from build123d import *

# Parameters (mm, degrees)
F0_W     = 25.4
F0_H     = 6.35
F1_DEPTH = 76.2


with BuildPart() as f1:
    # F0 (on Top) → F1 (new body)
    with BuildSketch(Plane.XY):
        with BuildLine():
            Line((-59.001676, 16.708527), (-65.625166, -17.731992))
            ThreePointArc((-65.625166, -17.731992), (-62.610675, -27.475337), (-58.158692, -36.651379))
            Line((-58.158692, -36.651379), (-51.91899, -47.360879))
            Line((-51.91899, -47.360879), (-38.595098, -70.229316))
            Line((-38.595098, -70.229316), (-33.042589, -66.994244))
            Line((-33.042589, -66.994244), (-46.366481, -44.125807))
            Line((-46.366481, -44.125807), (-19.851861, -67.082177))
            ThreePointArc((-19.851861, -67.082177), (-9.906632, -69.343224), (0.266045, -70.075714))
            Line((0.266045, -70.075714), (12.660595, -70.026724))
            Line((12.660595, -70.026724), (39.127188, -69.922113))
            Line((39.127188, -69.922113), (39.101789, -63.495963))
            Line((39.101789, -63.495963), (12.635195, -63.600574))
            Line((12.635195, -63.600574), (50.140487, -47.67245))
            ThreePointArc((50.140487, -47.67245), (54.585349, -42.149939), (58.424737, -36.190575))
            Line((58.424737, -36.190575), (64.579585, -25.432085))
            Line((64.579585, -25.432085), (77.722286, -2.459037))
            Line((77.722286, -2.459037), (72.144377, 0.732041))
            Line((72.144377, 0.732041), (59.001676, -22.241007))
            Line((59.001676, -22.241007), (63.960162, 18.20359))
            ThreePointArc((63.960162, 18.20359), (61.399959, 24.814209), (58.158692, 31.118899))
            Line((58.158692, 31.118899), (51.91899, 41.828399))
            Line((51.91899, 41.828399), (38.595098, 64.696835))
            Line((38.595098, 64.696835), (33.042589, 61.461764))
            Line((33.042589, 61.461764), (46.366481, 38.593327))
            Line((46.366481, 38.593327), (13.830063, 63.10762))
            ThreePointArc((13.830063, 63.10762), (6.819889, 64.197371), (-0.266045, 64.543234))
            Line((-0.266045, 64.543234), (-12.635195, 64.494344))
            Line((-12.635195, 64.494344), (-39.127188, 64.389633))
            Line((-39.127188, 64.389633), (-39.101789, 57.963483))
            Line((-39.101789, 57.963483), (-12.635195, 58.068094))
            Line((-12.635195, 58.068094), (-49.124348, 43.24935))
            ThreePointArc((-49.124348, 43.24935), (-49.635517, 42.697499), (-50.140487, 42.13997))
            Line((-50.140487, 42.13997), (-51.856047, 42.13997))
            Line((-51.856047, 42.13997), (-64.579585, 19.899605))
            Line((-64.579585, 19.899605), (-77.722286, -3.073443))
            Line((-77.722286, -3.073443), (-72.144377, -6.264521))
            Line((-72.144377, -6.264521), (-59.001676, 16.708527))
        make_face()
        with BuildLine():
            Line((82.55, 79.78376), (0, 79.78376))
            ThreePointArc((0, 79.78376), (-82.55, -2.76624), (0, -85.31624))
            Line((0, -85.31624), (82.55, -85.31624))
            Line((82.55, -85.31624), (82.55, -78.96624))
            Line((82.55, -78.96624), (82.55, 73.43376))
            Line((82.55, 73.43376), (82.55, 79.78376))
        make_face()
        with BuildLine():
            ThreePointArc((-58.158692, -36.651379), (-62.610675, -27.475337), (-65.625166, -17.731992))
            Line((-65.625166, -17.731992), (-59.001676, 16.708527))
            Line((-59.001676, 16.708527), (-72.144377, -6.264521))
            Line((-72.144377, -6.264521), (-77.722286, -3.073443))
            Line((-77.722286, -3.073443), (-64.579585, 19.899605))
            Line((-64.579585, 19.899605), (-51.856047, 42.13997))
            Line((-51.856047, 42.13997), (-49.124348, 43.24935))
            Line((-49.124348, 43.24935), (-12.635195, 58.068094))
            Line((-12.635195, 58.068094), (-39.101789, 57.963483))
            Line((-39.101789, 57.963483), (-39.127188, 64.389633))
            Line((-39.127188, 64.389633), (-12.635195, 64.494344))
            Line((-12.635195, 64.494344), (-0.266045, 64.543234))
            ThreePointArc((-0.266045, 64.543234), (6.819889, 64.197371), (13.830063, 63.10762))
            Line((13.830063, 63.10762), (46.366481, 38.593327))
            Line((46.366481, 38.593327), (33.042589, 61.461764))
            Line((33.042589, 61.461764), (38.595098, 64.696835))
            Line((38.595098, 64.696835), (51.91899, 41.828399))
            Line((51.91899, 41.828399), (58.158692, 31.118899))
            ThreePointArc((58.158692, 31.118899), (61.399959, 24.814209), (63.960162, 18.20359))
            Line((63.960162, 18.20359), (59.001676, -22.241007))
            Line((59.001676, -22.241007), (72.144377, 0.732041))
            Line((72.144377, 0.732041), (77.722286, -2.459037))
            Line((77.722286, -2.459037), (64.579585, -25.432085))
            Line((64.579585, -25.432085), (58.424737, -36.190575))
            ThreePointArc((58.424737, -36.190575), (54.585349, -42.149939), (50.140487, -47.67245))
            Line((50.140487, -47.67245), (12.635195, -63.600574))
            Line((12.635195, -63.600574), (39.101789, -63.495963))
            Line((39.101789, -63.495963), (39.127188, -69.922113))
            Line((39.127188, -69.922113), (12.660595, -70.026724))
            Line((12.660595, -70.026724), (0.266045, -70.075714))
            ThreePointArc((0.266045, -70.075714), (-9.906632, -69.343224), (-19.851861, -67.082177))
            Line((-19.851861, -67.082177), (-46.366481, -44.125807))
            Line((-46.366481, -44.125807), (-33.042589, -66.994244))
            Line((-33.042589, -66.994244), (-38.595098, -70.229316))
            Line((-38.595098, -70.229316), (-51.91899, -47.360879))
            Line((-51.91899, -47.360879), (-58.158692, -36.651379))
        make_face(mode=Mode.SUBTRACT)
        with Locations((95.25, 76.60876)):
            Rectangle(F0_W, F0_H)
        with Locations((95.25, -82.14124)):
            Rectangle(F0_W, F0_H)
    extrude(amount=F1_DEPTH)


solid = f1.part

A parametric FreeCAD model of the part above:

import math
import FreeCAD as App
import Part
import Sketcher

V = App.Vector
Q = App.Units.Quantity

doc = App.newDocument("Part")
body = doc.addObject("PartDesign::Body", "Body")

# Sketch on XY plane
sketch1 = doc.addObject("Sketcher::SketchObject", "Sketch")
body.addObject(sketch1)
sketch1.AttachmentSupport = (doc.XY_Plane, [""])
sketch1.MapMode = "FlatFace"
sketch1.addGeometry(Part.ArcOfCircle(Part.Circle(V(0, -2.8, 0), V(0, 0, 1), 82.5), math.radians(90), math.radians(270)), False)
sketch1.addGeometry(Part.LineSegment(V(0, -85.3, 0), V(108, -85.3, 0)), False)
sketch1.addGeometry(Part.LineSegment(V(108, -85.3, 0), V(108, -79, 0)), False)
sketch1.addGeometry(Part.LineSegment(V(108, -79, 0), V(82.5, -79, 0)), False)
sketch1.addGeometry(Part.LineSegment(V(82.5, -79, 0), V(82.5, 73.4, 0)), False)
sketch1.addGeometry(Part.LineSegment(V(82.5, 73.4, 0), V(108, 73.4, 0)), False)
sketch1.addGeometry(Part.LineSegment(V(108, 73.4, 0), V(108, 79.8, 0)), False)
sketch1.addGeometry(Part.LineSegment(V(108, 79.8, 0), V(0, 79.8, 0)), False)
sketch1.addGeometry(Part.LineSegment(V(-51.9, -47.4, 0), V(-58.2, -36.7, 0)), False)
sketch1.addGeometry(Part.ArcOfCircle(Part.Circle(V(0, -2.8, 0), V(0, 0, 1), 67.3), math.radians(-167.15), math.radians(-149.77)), False)
sketch1.addGeometry(Part.LineSegment(V(-65.6, -17.7, 0), V(-59, 16.7, 0)), False)
sketch1.addGeometry(Part.LineSegment(V(-59, 16.7, 0), V(-72.1, -6.3, 0)), False)
sketch1.addGeometry(Part.LineSegment(V(-72.1, -6.3, 0), V(-77.7, -3.1, 0)), False)
sketch1.addGeometry(Part.LineSegment(V(-77.7, -3.1, 0), V(-64.6, 19.9, 0)), False)
sketch1.addGeometry(Part.LineSegment(V(-64.6, 19.9, 0), V(-51.9, 42.1, 0)), False)
sketch1.addGeometry(Part.LineSegment(V(-51.9, 42.1, 0), V(-49.1, 43.2, 0)), False)
sketch1.addGeometry(Part.LineSegment(V(-49.1, 43.2, 0), V(-12.6, 58.1, 0)), False)
sketch1.addGeometry(Part.LineSegment(V(-12.6, 58.1, 0), V(-39.1, 58, 0)), False)
sketch1.addGeometry(Part.LineSegment(V(-39.1, 58, 0), V(-39.1, 64.4, 0)), False)
sketch1.addGeometry(Part.LineSegment(V(-39.1, 64.4, 0), V(-12.6, 64.5, 0)), False)
sketch1.addGeometry(Part.LineSegment(V(-12.6, 64.5, 0), V(-0.3, 64.5, 0)), False)
sketch1.addGeometry(Part.ArcOfCircle(Part.Circle(V(0, -2.8, 0), V(0, 0, 1), 67.3), math.radians(78.14), math.radians(90.23)), False)
sketch1.addGeometry(Part.LineSegment(V(13.8, 63.1, 0), V(46.4, 38.6, 0)), False)
sketch1.addGeometry(Part.LineSegment(V(46.4, 38.6, 0), V(33, 61.5, 0)), False)
sketch1.addGeometry(Part.LineSegment(V(33, 61.5, 0), V(38.6, 64.7, 0)), False)
sketch1.addGeometry(Part.LineSegment(V(38.6, 64.7, 0), V(51.9, 41.8, 0)), False)
sketch1.addGeometry(Part.LineSegment(V(51.9, 41.8, 0), V(58.2, 31.1, 0)), False)
sketch1.addGeometry(Part.ArcOfCircle(Part.Circle(V(0, -2.8, 0), V(0, 0, 1), 67.3), math.radians(18.15), math.radians(30.23)), False)
sketch1.addGeometry(Part.LineSegment(V(64, 18.2, 0), V(59, -22.2, 0)), False)
sketch1.addGeometry(Part.LineSegment(V(59, -22.2, 0), V(72.1, 0.7, 0)), False)
sketch1.addGeometry(Part.LineSegment(V(72.1, 0.7, 0), V(77.7, -2.5, 0)), False)
sketch1.addGeometry(Part.LineSegment(V(77.7, -2.5, 0), V(64.6, -25.4, 0)), False)
sketch1.addGeometry(Part.LineSegment(V(64.6, -25.4, 0), V(58.4, -36.2, 0)), False)
sketch1.addGeometry(Part.ArcOfCircle(Part.Circle(V(0, -2.8, 0), V(0, 0, 1), 67.3), math.radians(-41.85), math.radians(-29.77)), False)
sketch1.addGeometry(Part.LineSegment(V(50.1, -47.7, 0), V(12.6, -63.6, 0)), False)
sketch1.addGeometry(Part.LineSegment(V(12.6, -63.6, 0), V(39.1, -63.5, 0)), False)
sketch1.addGeometry(Part.LineSegment(V(39.1, -63.5, 0), V(39.1, -69.9, 0)), False)
sketch1.addGeometry(Part.LineSegment(V(39.1, -69.9, 0), V(12.7, -70, 0)), False)
sketch1.addGeometry(Part.LineSegment(V(12.7, -70, 0), V(0.3, -70.1, 0)), False)
sketch1.addGeometry(Part.ArcOfCircle(Part.Circle(V(0, -2.8, 0), V(0, 0, 1), 67.3), math.radians(-107.15), math.radians(-89.77)), False)
sketch1.addGeometry(Part.LineSegment(V(-19.9, -67.1, 0), V(-46.4, -44.1, 0)), False)
sketch1.addGeometry(Part.LineSegment(V(-46.4, -44.1, 0), V(-33, -67, 0)), False)
sketch1.addGeometry(Part.LineSegment(V(-33, -67, 0), V(-38.6, -70.2, 0)), False)
sketch1.addGeometry(Part.LineSegment(V(-38.6, -70.2, 0), V(-51.9, -47.4, 0)), False)
sketch1.addConstraint(Sketcher.Constraint("Tangent", 0, 2, 1, 1))
sketch1.addConstraint(Sketcher.Constraint("Coincident", 1, 2, 2, 1))
sketch1.addConstraint(Sketcher.Constraint("Coincident", 2, 2, 3, 1))
sketch1.addConstraint(Sketcher.Constraint("Coincident", 3, 2, 4, 1))
sketch1.addConstraint(Sketcher.Constraint("Coincident", 4, 2, 5, 1))
sketch1.addConstraint(Sketcher.Constraint("Coincident", 5, 2, 6, 1))
sketch1.addConstraint(Sketcher.Constraint("Coincident", 6, 2, 7, 1))
sketch1.addConstraint(Sketcher.Constraint("Tangent", 7, 2, 0, 1))
sketch1.addConstraint(Sketcher.Constraint("Tangent", 8, 2, 9, 2))
sketch1.addConstraint(Sketcher.Constraint("Coincident", 9, 1, 10, 1))
sketch1.addConstraint(Sketcher.Constraint("Coincident", 10, 2, 11, 1))
sketch1.addConstraint(Sketcher.Constraint("Coincident", 11, 2, 12, 1))
sketch1.addConstraint(Sketcher.Constraint("Coincident", 12, 2, 13, 1))
sketch1.addConstraint(Sketcher.Constraint("Coincident", 13, 2, 14, 1))
sketch1.addConstraint(Sketcher.Constraint("Coincident", 14, 2, 15, 1))
sketch1.addConstraint(Sketcher.Constraint("Coincident", 15, 2, 16, 1))
sketch1.addConstraint(Sketcher.Constraint("Coincident", 16, 2, 17, 1))
sketch1.addConstraint(Sketcher.Constraint("Coincident", 17, 2, 18, 1))
sketch1.addConstraint(Sketcher.Constraint("Coincident", 18, 2, 19, 1))
sketch1.addConstraint(Sketcher.Constraint("Coincident", 19, 2, 20, 1))
sketch1.addConstraint(Sketcher.Constraint("Tangent", 20, 2, 21, 2))
sketch1.addConstraint(Sketcher.Constraint("Coincident", 21, 1, 22, 1))
sketch1.addConstraint(Sketcher.Constraint("Coincident", 22, 2, 23, 1))
sketch1.addConstraint(Sketcher.Constraint("Coincident", 23, 2, 24, 1))
sketch1.addConstraint(Sketcher.Constraint("Coincident", 24, 2, 25, 1))
sketch1.addConstraint(Sketcher.Constraint("Coincident", 25, 2, 26, 1))
sketch1.addConstraint(Sketcher.Constraint("Tangent", 26, 2, 27, 2))
sketch1.addConstraint(Sketcher.Constraint("Coincident", 27, 1, 28, 1))
sketch1.addConstraint(Sketcher.Constraint("Coincident", 28, 2, 29, 1))
sketch1.addConstraint(Sketcher.Constraint("Coincident", 29, 2, 30, 1))
sketch1.addConstraint(Sketcher.Constraint("Coincident", 30, 2, 31, 1))
sketch1.addConstraint(Sketcher.Constraint("Coincident", 31, 2, 32, 1))
sketch1.addConstraint(Sketcher.Constraint("Tangent", 32, 2, 33, 2))
sketch1.addConstraint(Sketcher.Constraint("Coincident", 33, 1, 34, 1))
sketch1.addConstraint(Sketcher.Constraint("Coincident", 34, 2, 35, 1))
sketch1.addConstraint(Sketcher.Constraint("Coincident", 35, 2, 36, 1))
sketch1.addConstraint(Sketcher.Constraint("Coincident", 36, 2, 37, 1))
sketch1.addConstraint(Sketcher.Constraint("Coincident", 37, 2, 38, 1))
sketch1.addConstraint(Sketcher.Constraint("Tangent", 38, 2, 39, 2))
sketch1.addConstraint(Sketcher.Constraint("Coincident", 39, 1, 40, 1))
sketch1.addConstraint(Sketcher.Constraint("Coincident", 40, 2, 41, 1))
sketch1.addConstraint(Sketcher.Constraint("Coincident", 41, 2, 42, 1))
sketch1.addConstraint(Sketcher.Constraint("Coincident", 42, 2, 43, 1))
sketch1.addConstraint(Sketcher.Constraint("Coincident", 43, 2, 8, 1))
sketch1.addConstraint(Sketcher.Constraint("Horizontal", 1))
sketch1.addConstraint(Sketcher.Constraint("Vertical", 2))
sketch1.addConstraint(Sketcher.Constraint("Horizontal", 3))
sketch1.addConstraint(Sketcher.Constraint("Vertical", 4))
sketch1.addConstraint(Sketcher.Constraint("Horizontal", 5))
sketch1.addConstraint(Sketcher.Constraint("Vertical", 6))
sketch1.addConstraint(Sketcher.Constraint("Horizontal", 7))
sketch1.addConstraint(Sketcher.Constraint("PointOnObject", 0, 3, -2))
sketch1.addConstraint(Sketcher.Constraint("PointOnObject", 21, 3, -2))
sketch1.addConstraint(Sketcher.Constraint("Perpendicular", 11, 12))
sketch1.addConstraint(Sketcher.Constraint("Perpendicular", 12, 13))
sketch1.addConstraint(Sketcher.Constraint("Parallel", 13, 14))
sketch1.addConstraint(Sketcher.Constraint("Parallel", 15, 16))
sketch1.addConstraint(Sketcher.Constraint("Perpendicular", 17, 18))
sketch1.addConstraint(Sketcher.Constraint("Perpendicular", 18, 19))
sketch1.addConstraint(Sketcher.Constraint("Parallel", 19, 20))
sketch1.addConstraint(Sketcher.Constraint("Parallel", 8, 23))
sketch1.addConstraint(Sketcher.Constraint("Perpendicular", 23, 24))
sketch1.addConstraint(Sketcher.Constraint("Perpendicular", 24, 25))
sketch1.addConstraint(Sketcher.Constraint("Parallel", 25, 26))
sketch1.addConstraint(Sketcher.Constraint("Parallel", 14, 29))
sketch1.addConstraint(Sketcher.Constraint("Perpendicular", 29, 30))
sketch1.addConstraint(Sketcher.Constraint("Perpendicular", 30, 31))
sketch1.addConstraint(Sketcher.Constraint("Parallel", 31, 32))
sketch1.addConstraint(Sketcher.Constraint("Parallel", 20, 35))
sketch1.addConstraint(Sketcher.Constraint("Perpendicular", 35, 36))
sketch1.addConstraint(Sketcher.Constraint("Perpendicular", 36, 37))
sketch1.addConstraint(Sketcher.Constraint("Parallel", 37, 38))
sketch1.addConstraint(Sketcher.Constraint("Parallel", 26, 41))
sketch1.addConstraint(Sketcher.Constraint("Perpendicular", 41, 42))
sketch1.addConstraint(Sketcher.Constraint("Perpendicular", 42, 43))
sketch1.addConstraint(Sketcher.Constraint("Horizontal", 27, 3, 33, 3))
sketch1.addConstraint(Sketcher.Constraint("Vertical", 2, 2, 5, 2))
sketch1.addConstraint(Sketcher.Constraint("Vertical", 16, 2, 19, 2))
sketch1.addConstraint(Sketcher.Constraint("Equal", 2, 6))
sketch1.addConstraint(Sketcher.Constraint("Equal", 11, 13))
sketch1.addConstraint(Sketcher.Constraint("Equal", 13, 17))
sketch1.addConstraint(Sketcher.Constraint("Equal", 12, 18))
sketch1.addConstraint(Sketcher.Constraint("Equal", 17, 23))
sketch1.addConstraint(Sketcher.Constraint("Equal", 18, 24))
sketch1.addConstraint(Sketcher.Constraint("Equal", 23, 25))
sketch1.addConstraint(Sketcher.Constraint("Equal", 8, 26))
sketch1.addConstraint(Sketcher.Constraint("Equal", 25, 29))
sketch1.addConstraint(Sketcher.Constraint("Equal", 24, 30))
sketch1.addConstraint(Sketcher.Constraint("Equal", 29, 31))
sketch1.addConstraint(Sketcher.Constraint("Equal", 26, 32))
sketch1.addConstraint(Sketcher.Constraint("Equal", 28, 34))
sketch1.addConstraint(Sketcher.Constraint("Equal", 31, 35))
sketch1.addConstraint(Sketcher.Constraint("Equal", 30, 36))
sketch1.addConstraint(Sketcher.Constraint("Equal", 35, 37))
sketch1.addConstraint(Sketcher.Constraint("Equal", 32, 38))
sketch1.addConstraint(Sketcher.Constraint("Equal", 10, 40))
sketch1.addConstraint(Sketcher.Constraint("Equal", 37, 41))
sketch1.addConstraint(Sketcher.Constraint("Equal", 36, 42))
sketch1.addConstraint(Sketcher.Constraint("Equal", 41, 43))
sketch1.addConstraint(Sketcher.Constraint("DistanceX", 3, 2, 3, 1, Q("1 in")))
sketch1.addConstraint(Sketcher.Constraint("DistanceY", 4, 1, 4, 2, Q("6 in")))
sketch1.addConstraint(Sketcher.Constraint("Radius", 0, Q("3.25 in")))
sketch1.addConstraint(Sketcher.Constraint("DistanceX", 1, 1, 1, 2, Q("4.25 in")))
sketch1.addConstraint(Sketcher.Constraint("Distance", 11, Q("1.042 in")))
sketch1.addConstraint(Sketcher.Constraint("Distance", 12, Q("0.253 in")))
sketch1.addConstraint(Sketcher.Constraint("Distance", 19, Q("1.043 in")))
sketch1.addConstraint(Sketcher.Constraint("Radius", 9, Q("67.310016 mm")))
sketch1.addConstraint(Sketcher.Constraint("Radius", 21, Q("67.309984 mm")))
sketch1.addConstraint(Sketcher.Constraint("Radius", 27, Q("67.309953 mm")))
sketch1.addConstraint(Sketcher.Constraint("Radius", 33, Q("67.310035 mm")))
sketch1.addConstraint(Sketcher.Constraint("Radius", 39, Q("67.309967 mm")))
sketch1.addConstraint(Sketcher.Constraint("DistanceX", 9, 3, 28, 2, Q("2.3229001 in")))
sketch1.addConstraint(Sketcher.Constraint("DistanceY", 30, 2, 25, 2, Q("1.7435998 in")))
sketch1.addConstraint(Sketcher.Constraint("DistanceY", -1, 1, 25, 2, Q("41.828399 mm")))
sketch1.addConstraint(Sketcher.Constraint("DistanceY", -1, 1, 26, 2, Q("31.118899 mm")))
sketch1.addConstraint(Sketcher.Constraint("DistanceX", 11, 2, 10, 2, Q("13.142701 mm")))
sketch1.addConstraint(Sketcher.Constraint("DistanceY", 11, 2, 33, 3, Q("3.498299 mm")))
sketch1.addConstraint(Sketcher.Constraint("DistanceX", 14, 2, 15, 2, Q("2.731699 mm")))
sketch1.addConstraint(Sketcher.Constraint("DistanceY", 20, 2, 24, 2, Q("0.153601 mm")))
sketch1.addConstraint(Sketcher.Constraint("DistanceX", 33, 1, 31, 2, Q("14.439098 mm")))
sketch1.addConstraint(Sketcher.Constraint("DistanceY", 34, 2, 32, 2, Q("27.409999 mm")))
sketch1.addConstraint(Sketcher.Constraint("DistanceX", 36, 2, 33, 1, Q("11.013299 mm")))
sketch1.addConstraint(Sketcher.Constraint("DistanceY", 42, 2, 38, 2, Q("0.153602 mm")))
sketch1.addConstraint(Sketcher.Constraint("Distance", 10, Q("35.071641 mm")))
sketch1.addConstraint(Sketcher.Constraint("Distance", 14, Q("25.62269 mm")))
sketch1.addConstraint(Sketcher.Constraint("Distance", 22, Q("40.737809 mm")))
sketch1.addConstraint(Sketcher.Constraint("DistanceY", 0, 3, -1, 1, Q("2.76624 mm")))
sketch1.addConstraint(Sketcher.Constraint("DistanceY", -1, 1, 15, 2, Q("43.24935 mm")))
sketch1.addConstraint(Sketcher.Constraint("DistanceX", 17, 2, -1, 1, Q("39.101789 mm")))
sketch1.addConstraint(Sketcher.Constraint("DistanceY", -1, 1, 21, 1, Q("63.10762 mm")))
sketch1.addConstraint(Sketcher.Constraint("DistanceX", -1, 1, 35, 2, Q("39.101789 mm")))
pad1 = doc.addObject("PartDesign::Pad", "Pad")
body.addObject(pad1)
pad1.Profile = sketch1
pad1.Length = Q("3 in")

doc.recompute()
